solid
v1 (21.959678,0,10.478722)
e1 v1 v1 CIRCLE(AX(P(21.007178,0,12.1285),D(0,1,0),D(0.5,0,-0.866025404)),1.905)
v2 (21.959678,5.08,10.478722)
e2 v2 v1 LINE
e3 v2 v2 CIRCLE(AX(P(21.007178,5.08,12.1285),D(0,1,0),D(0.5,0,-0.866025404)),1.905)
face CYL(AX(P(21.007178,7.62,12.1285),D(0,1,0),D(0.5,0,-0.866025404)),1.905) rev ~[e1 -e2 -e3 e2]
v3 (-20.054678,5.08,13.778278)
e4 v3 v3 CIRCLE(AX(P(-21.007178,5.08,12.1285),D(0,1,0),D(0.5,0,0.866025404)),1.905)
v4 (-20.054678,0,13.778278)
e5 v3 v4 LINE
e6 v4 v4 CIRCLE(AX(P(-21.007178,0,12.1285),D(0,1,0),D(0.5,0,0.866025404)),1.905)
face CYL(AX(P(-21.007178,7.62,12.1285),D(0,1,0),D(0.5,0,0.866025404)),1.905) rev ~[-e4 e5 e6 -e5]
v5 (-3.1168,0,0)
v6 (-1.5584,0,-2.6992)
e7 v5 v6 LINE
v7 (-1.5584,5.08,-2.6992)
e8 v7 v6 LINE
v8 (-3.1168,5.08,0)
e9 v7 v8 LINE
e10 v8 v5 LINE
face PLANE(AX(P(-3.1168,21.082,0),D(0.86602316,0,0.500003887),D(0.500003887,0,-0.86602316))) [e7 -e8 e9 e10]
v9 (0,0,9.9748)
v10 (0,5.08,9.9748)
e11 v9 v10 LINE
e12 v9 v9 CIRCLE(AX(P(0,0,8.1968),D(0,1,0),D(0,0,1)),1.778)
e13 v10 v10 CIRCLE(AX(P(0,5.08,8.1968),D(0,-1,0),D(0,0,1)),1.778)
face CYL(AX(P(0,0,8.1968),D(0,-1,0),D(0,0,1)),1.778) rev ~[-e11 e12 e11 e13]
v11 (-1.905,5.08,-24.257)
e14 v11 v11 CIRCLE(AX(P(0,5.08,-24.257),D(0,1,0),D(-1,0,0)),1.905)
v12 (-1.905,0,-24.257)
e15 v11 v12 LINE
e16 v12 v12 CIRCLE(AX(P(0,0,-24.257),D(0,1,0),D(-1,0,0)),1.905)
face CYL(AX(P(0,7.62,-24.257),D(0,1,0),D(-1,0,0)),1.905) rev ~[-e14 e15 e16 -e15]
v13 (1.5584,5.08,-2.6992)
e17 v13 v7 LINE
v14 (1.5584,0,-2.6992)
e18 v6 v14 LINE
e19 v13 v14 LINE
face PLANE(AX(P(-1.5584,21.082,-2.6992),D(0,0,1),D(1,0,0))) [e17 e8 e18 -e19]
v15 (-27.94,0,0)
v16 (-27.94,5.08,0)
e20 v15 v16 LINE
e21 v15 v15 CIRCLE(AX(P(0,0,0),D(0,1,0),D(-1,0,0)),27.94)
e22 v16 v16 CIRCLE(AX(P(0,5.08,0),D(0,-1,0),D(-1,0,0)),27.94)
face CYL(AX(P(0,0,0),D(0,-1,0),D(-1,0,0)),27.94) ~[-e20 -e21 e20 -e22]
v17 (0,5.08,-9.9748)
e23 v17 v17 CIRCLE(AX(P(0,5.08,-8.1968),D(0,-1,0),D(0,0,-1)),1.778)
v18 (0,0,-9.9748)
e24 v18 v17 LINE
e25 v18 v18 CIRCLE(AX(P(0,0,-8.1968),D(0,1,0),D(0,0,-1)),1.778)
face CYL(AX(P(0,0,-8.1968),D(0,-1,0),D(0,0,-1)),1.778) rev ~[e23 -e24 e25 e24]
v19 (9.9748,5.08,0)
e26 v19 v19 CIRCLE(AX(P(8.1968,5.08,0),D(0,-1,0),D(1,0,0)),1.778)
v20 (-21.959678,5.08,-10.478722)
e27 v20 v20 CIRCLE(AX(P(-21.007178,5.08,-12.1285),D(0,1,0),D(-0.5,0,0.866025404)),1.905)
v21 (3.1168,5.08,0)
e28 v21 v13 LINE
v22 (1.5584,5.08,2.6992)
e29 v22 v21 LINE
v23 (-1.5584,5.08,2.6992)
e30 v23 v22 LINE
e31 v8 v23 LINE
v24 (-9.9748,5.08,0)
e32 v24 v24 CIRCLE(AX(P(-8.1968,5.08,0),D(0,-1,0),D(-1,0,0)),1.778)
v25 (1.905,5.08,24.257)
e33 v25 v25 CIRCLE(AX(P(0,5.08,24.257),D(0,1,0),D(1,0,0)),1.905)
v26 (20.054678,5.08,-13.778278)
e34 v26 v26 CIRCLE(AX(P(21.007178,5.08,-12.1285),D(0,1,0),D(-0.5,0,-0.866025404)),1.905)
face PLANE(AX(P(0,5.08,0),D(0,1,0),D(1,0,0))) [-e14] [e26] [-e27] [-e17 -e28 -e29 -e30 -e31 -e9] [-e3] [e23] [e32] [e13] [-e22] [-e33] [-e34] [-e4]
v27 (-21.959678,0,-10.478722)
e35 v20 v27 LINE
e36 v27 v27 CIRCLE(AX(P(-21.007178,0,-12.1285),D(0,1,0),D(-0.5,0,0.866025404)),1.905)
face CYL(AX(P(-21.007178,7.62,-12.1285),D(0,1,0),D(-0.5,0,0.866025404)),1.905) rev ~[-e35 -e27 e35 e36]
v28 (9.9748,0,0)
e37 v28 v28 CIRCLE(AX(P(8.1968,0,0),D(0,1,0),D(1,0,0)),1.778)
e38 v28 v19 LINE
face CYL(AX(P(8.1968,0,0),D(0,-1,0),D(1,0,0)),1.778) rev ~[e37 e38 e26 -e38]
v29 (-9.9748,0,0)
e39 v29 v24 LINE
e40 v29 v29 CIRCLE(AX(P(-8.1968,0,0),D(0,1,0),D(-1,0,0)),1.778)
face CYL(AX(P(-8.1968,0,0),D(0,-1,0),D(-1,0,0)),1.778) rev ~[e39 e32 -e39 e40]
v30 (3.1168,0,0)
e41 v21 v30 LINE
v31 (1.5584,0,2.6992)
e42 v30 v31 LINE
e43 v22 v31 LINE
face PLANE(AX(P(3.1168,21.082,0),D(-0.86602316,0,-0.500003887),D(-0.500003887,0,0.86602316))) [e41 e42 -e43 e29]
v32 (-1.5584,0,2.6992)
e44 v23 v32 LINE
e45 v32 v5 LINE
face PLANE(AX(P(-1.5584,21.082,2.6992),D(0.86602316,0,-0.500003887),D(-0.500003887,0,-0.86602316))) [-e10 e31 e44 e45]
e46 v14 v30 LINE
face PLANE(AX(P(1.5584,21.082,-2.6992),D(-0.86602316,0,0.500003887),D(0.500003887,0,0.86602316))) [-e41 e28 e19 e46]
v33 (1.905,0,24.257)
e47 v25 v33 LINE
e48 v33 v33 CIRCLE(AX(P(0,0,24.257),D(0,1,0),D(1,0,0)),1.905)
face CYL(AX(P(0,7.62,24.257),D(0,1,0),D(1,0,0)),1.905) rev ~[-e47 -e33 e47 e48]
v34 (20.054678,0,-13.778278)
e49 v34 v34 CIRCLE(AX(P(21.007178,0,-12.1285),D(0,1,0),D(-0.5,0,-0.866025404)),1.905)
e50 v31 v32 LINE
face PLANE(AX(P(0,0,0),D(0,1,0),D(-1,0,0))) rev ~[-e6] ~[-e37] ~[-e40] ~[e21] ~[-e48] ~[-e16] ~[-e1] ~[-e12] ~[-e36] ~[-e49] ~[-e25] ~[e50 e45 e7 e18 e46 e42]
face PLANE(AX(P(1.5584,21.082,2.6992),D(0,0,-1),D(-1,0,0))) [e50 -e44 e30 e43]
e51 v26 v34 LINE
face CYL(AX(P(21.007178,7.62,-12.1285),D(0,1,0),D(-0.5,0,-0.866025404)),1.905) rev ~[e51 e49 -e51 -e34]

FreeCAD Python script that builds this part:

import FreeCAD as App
import Part
import Sketcher
from FreeCAD import Vector
Q = App.Units.Quantity

doc = App.newDocument("Part")
body = doc.addObject("PartDesign::Body", "Body")

# Sketch on XZ plane
sketch1 = body.newObject("Sketcher::SketchObject", "Sketch")
sketch1.AttachmentSupport = (doc.getObject("XZ_Plane"), [""])
sketch1.MapMode = "FlatFace"
sketch1.addGeometry(Part.Circle(Vector(0, 0, 0), Vector(0, 0, 1), 27.94), False)
sketch1.addConstraint([
    Sketcher.Constraint("Coincident", 0, 3, -1, 1),
    Sketcher.Constraint("Diameter", 0, Q("2.2 in")),
])
pad1 = body.newObject("PartDesign::Pad", "Pad")
pad1.Profile = sketch1
pad1.Length = Q("0.3 in")
pad1.Reversed = True

# Sketch on XZ plane
sketch2 = body.newObject("Sketcher::SketchObject", "Sketch001")
sketch2.AttachmentSupport = (doc.getObject("XZ_Plane"), [""])
sketch2.MapMode = "FlatFace"
sketch2.AttachmentOffset = App.Placement(Vector(0, 0, -0.83 * 25.4), App.Rotation())
sketch2.addGeometry([
    Part.LineSegment(Vector(-1.5584, -2.6992, 0), Vector(-3.1168, 0, 0)),  # 0
    Part.LineSegment(Vector(-3.1168, 0, 0), Vector(-1.5584, 2.6992, 0)),  # 1
    Part.LineSegment(Vector(-1.5584, 2.6992, 0), Vector(1.5584, 2.6992, 0)),  # 2
    Part.LineSegment(Vector(1.5584, 2.6992, 0), Vector(3.1168, 0, 0)),  # 3
    Part.LineSegment(Vector(3.1168, 0, 0), Vector(1.5584, -2.6992, 0)),  # 4
    Part.LineSegment(Vector(1.5584, -2.6992, 0), Vector(-1.5584, -2.6992, 0)),  # 5
], False)
sketch2.addConstraint([
    Sketcher.Constraint("Coincident", 0, 2, 1, 1),
    Sketcher.Constraint("Coincident", 1, 2, 2, 1),
    Sketcher.Constraint("Coincident", 2, 2, 3, 1),
    Sketcher.Constraint("Coincident", 3, 2, 4, 1),
    Sketcher.Constraint("Coincident", 4, 2, 5, 1),
    Sketcher.Constraint("Coincident", 5, 2, 0, 1),
    Sketcher.Constraint("Horizontal", 2),
    Sketcher.Constraint("Horizontal", 5),
    Sketcher.Constraint("Symmetric", 0, 2, 3, 2, -1, 1),
    Sketcher.Constraint("Symmetric", 1, 2, 4, 2, -1, 1),
    Sketcher.Constraint("PointOnObject", 0, 2, -1),
    Sketcher.Constraint("Parallel", 0, 3),
    Sketcher.Constraint("Vertical", 2, 2, 4, 2),
    Sketcher.Constraint("Angle", 0, Q("120.0003 deg")),
    Sketcher.Constraint("DistanceX", 2, 1, 2, 2, Q("0.1227 in")),
    Sketcher.Constraint("Distance", 0, Q("0.1227 in")),
])
pocket1 = body.newObject("PartDesign::Pocket", "Pocket")
pocket1.Profile = sketch2
pocket1.Length = Q("1 in")
pocket1.Reversed = True

# Sketch on XZ plane
sketch3 = body.newObject("Sketcher::SketchObject", "Sketch002")
sketch3.AttachmentSupport = (doc.getObject("XZ_Plane"), [""])
sketch3.MapMode = "FlatFace"
sketch3.AttachmentOffset = App.Placement(Vector(0, 0, -0.3 * 25.4), App.Rotation())
sketch3.addGeometry(Part.Circle(Vector(0, 24.257, 0), Vector(0, 0, 1), 1.905), False)
sketch3.addConstraint([
    Sketcher.Constraint("PointOnObject", 0, 3, -2),
    Sketcher.Constraint("Diameter", 0, Q("0.15 in")),
    Sketcher.Constraint("DistanceY", -1, 1, 0, 3, Q("0.955 in")),
])
pocket2 = body.newObject("PartDesign::Pocket", "Pocket001")
pocket2.Profile = sketch3
pocket2.Length = Q("1 in")
pocket2.Reversed = True
doc.recompute()

polarpattern = body.newObject("PartDesign::PolarPattern", "PolarPattern")
polarpattern.Originals = [pocket2]
polarpattern.Axis = (doc.getObject("Y_Axis"), [""])
polarpattern.Angle = 360
polarpattern.Occurrences = 6
body.Tip = polarpattern

# Sketch on XZ plane
sketch4 = body.newObject("Sketcher::SketchObject", "Sketch003")
sketch4.AttachmentSupport = (doc.getObject("XZ_Plane"), [""])
sketch4.MapMode = "FlatFace"
sketch4.addGeometry(Part.Circle(Vector(8.1968, 0, 0), Vector(0, 0, 1), 1.778), False)
sketch4.addConstraint([
    Sketcher.Constraint("PointOnObject", 0, 3, -1),
    Sketcher.Constraint("Diameter", 0, Q("0.14 in")),
    Sketcher.Constraint("DistanceX", -1, 1, 0, 3, Q("0.3227 in")),
])
pocket3 = body.newObject("PartDesign::Pocket", "Pocket002")
pocket3.Profile = sketch4
pocket3.Length = Q("1 in")
doc.recompute()

polarpattern2 = body.newObject("PartDesign::PolarPattern", "PolarPattern001")
polarpattern2.Originals = [pocket3]
polarpattern2.Axis = (doc.getObject("Y_Axis"), [""])
polarpattern2.Angle = 360
polarpattern2.Occurrences = 4
body.Tip = polarpattern2

# Sketch on XZ plane
sketch5 = body.newObject("Sketcher::SketchObject", "Sketch004")
sketch5.AttachmentSupport = (doc.getObject("XZ_Plane"), [""])
sketch5.MapMode = "FlatFace"
sketch5.AttachmentOffset = App.Placement(Vector(0, 0, -0.3 * 25.4), App.Rotation())
sketch5.addGeometry(Part.Circle(Vector(0, 0, 0), Vector(0, 0, 1), 27.94), False)
sketch5.addConstraint([
    Sketcher.Constraint("Coincident", 0, 3, -1, 1),
    Sketcher.Constraint("Diameter", 0, Q("2.2 in")),
])
pocket4 = body.newObject("PartDesign::Pocket", "Pocket003")
pocket4.Profile = sketch5
pocket4.Length = Q("0.1 in")
pocket4.Reversed = True

doc.recompute()
